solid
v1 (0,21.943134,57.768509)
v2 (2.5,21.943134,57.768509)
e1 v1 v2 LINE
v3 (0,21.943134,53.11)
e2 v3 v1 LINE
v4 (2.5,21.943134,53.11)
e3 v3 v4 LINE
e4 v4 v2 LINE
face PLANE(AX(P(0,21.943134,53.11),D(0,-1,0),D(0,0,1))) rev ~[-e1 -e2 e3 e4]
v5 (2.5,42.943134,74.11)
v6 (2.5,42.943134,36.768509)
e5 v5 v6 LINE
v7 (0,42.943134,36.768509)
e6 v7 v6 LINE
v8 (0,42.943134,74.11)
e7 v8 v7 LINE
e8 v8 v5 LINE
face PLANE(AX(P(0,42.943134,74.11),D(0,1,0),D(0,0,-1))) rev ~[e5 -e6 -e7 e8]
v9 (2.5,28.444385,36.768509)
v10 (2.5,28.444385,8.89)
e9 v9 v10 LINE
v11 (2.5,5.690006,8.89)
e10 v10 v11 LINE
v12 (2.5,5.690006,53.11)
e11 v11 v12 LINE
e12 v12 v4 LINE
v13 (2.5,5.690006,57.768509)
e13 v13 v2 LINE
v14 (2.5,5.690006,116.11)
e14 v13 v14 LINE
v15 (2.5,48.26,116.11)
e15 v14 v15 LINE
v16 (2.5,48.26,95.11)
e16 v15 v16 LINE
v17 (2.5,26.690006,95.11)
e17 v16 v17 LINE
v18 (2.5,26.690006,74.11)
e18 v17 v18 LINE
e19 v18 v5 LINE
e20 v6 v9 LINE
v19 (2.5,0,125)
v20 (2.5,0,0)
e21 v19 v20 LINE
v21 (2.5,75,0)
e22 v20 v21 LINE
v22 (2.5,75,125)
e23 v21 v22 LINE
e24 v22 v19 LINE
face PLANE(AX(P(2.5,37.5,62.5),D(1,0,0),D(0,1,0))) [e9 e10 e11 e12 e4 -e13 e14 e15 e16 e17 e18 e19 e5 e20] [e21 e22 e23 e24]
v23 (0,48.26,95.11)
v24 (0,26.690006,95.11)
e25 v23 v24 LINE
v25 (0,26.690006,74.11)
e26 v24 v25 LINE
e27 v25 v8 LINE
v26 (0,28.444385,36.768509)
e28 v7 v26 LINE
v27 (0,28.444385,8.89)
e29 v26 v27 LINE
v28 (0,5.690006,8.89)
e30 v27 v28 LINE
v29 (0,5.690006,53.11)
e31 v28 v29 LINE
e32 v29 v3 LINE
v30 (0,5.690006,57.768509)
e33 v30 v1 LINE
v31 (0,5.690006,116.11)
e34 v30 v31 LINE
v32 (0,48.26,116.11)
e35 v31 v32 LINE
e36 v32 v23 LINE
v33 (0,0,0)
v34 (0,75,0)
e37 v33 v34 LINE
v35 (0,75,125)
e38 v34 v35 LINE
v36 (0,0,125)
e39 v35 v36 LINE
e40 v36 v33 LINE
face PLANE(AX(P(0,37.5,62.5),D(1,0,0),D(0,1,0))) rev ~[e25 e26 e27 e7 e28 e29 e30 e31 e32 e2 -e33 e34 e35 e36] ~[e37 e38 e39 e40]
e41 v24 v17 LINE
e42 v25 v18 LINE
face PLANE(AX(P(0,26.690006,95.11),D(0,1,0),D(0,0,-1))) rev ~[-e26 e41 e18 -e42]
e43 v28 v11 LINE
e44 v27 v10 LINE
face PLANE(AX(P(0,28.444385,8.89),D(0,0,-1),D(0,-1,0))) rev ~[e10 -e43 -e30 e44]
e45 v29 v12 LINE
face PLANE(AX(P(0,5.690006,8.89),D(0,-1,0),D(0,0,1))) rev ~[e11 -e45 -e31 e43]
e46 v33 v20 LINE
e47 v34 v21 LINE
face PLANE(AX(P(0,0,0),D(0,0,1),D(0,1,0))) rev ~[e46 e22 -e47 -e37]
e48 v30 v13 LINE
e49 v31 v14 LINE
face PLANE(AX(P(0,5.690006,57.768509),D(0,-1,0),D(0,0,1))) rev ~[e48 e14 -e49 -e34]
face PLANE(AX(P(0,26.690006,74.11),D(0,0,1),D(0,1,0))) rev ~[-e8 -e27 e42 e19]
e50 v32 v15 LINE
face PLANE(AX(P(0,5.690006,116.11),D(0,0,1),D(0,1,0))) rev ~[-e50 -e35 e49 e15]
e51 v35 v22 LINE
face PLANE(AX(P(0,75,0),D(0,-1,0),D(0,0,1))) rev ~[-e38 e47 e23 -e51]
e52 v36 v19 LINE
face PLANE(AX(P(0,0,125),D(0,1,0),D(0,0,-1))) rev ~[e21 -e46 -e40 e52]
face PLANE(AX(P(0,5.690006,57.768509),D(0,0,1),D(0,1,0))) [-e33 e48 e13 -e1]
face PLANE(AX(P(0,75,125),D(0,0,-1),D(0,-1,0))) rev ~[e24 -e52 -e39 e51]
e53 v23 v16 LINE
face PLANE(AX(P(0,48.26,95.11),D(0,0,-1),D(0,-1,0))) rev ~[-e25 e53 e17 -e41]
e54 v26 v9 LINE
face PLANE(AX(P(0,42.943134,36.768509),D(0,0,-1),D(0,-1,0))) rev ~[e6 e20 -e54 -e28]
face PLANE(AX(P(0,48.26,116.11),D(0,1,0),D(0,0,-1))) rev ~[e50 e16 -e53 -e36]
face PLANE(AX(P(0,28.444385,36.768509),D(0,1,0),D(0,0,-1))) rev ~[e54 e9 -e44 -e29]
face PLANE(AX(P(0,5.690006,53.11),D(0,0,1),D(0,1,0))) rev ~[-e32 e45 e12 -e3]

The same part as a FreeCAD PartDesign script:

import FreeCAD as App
import Part
import Sketcher
Q = App.Units.Quantity


def add_polygon(sketch, points):
    """Adds a closed chain of lines whose ends are joined by coincident constraints."""
    first, n = sketch.GeometryCount, len(points)
    for a, b in zip(points, points[1:] + points[:1]):
        sketch.addGeometry(Part.LineSegment(App.Vector(*a, 0), App.Vector(*b, 0)), False)
    for i in range(n):
        sketch.addConstraint(Sketcher.Constraint("Coincident", first + i, 2, first + (i + 1) % n, 1))

doc = App.newDocument("Part")
params = doc.addObject("Spreadsheet::Sheet", "Params")
for row, (alias, value) in enumerate([
    ("sketch1_width", "75 mm"),
    ("sketch1_height", "125 mm"),
    ("sketch1_height2", "21 mm"),
    ("sketch1_height3", "44.22 mm"),
    ("pad1_length", "2.5 mm"),
], start=1):
    params.set(f"A{row}", alias)
    params.set(f"B{row}", "=" + value)
    params.setAlias(f"B{row}", alias)

body = doc.addObject("PartDesign::Body", "Body")

# Sketch on YZ plane
sketch1 = body.newObject("Sketcher::SketchObject", "Sketch")
sketch1.AttachmentSupport = (doc.getObject("YZ_Plane"), [""])
sketch1.MapMode = "FlatFace"
add_polygon(sketch1, [(0, 125), (0, 0), (75, 0), (75, 125)])  # lines 0-3
add_polygon(sketch1, [(5.7, 8.9), (5.7, 53.1), (21.9, 53.1), (21.9, 57.8), (5.7, 57.8), (5.7, 116.1), (48.3, 116.1), (48.3, 95.1), (26.7, 95.1), (26.7, 74.1), (42.9, 74.1), (42.9, 36.8), (28.4, 36.8), (28.4, 8.9)])  # lines 4-17
sketch1.addConstraint(Sketcher.Constraint("Vertical", 0))
sketch1.addConstraint(Sketcher.Constraint("Horizontal", 1))
sketch1.addConstraint(Sketcher.Constraint("Vertical", 2))
sketch1.addConstraint(Sketcher.Constraint("Horizontal", 3))
sketch1.addConstraint(Sketcher.Constraint("Vertical", 4))
sketch1.addConstraint(Sketcher.Constraint("Horizontal", 5))
sketch1.addConstraint(Sketcher.Constraint("Vertical", 6))
sketch1.addConstraint(Sketcher.Constraint("Horizontal", 7))
sketch1.addConstraint(Sketcher.Constraint("Vertical", 8))
sketch1.addConstraint(Sketcher.Constraint("Horizontal", 9))
sketch1.addConstraint(Sketcher.Constraint("Vertical", 10))
sketch1.addConstraint(Sketcher.Constraint("Horizontal", 11))
sketch1.addConstraint(Sketcher.Constraint("Vertical", 12))
sketch1.addConstraint(Sketcher.Constraint("Horizontal", 13))
sketch1.addConstraint(Sketcher.Constraint("Vertical", 14))
sketch1.addConstraint(Sketcher.Constraint("Horizontal", 15))
sketch1.addConstraint(Sketcher.Constraint("Vertical", 16))
sketch1.addConstraint(Sketcher.Constraint("Horizontal", 17))
sketch1.addConstraint(Sketcher.Constraint("Coincident", 0, 2, -1, 1))
sketch1.addConstraint(Sketcher.Constraint("Vertical", 4, 2, 7, 2))
sketch1.addConstraint(Sketcher.Constraint("Equal", 7, 13))
sketch1.addConstraint(Sketcher.Constraint("Equal", 10, 12))
sketch1.addConstraint(Sketcher.Constraint("DistanceX", 1, 1, 1, 2, Q("75 mm")))
sketch1.addConstraint(Sketcher.Constraint("DistanceY", 0, 2, 0, 1, Q("125 mm")))
sketch1.addConstraint(Sketcher.Constraint("DistanceY", 10, 2, 10, 1, Q("21 mm")))
sketch1.addConstraint(Sketcher.Constraint("DistanceY", 4, 2, 8, 2, Q("63 mm")))
sketch1.addConstraint(Sketcher.Constraint("DistanceX", 8, 2, 11, 2, Q("21 mm")))
sketch1.addConstraint(Sketcher.Constraint("DistanceY", 14, 2, 6, 2, Q("21 mm")))
sketch1.addConstraint(Sketcher.Constraint("DistanceY", 4, 1, 4, 2, Q("44.22 mm")))
sketch1.addConstraint(Sketcher.Constraint("DistanceY", -1, 1, 4, 2, Q("53.11 mm")))
sketch1.addConstraint(Sketcher.Constraint("DistanceX", -1, 1, 9, 2, Q("48.26 mm")))
sketch1.addConstraint(Sketcher.Constraint("DistanceX", 5, 1, 5, 2, Q("16.253128 mm")))
sketch1.addConstraint(Sketcher.Constraint("DistanceX", 15, 2, 15, 1, Q("14.498749 mm")))
sketch1.addConstraint(Sketcher.Constraint("DistanceY", 6, 1, 6, 2, Q("4.658509 mm")))
sketch1.addConstraint(Sketcher.Constraint("DistanceX", 9, 1, 9, 2, Q("42.569994 mm")))
sketch1.setExpression("Constraints[40]", "Params.sketch1_width")
sketch1.setExpression("Constraints[41]", "Params.sketch1_height")
sketch1.setExpression("Constraints[42]", "Params.sketch1_height2")
sketch1.setExpression("Constraints[46]", "Params.sketch1_height3")
pad1 = body.newObject("PartDesign::Pad", "Pad")
pad1.Profile = sketch1
pad1.setExpression("Length", "Params.pad1_length")

doc.recompute()
